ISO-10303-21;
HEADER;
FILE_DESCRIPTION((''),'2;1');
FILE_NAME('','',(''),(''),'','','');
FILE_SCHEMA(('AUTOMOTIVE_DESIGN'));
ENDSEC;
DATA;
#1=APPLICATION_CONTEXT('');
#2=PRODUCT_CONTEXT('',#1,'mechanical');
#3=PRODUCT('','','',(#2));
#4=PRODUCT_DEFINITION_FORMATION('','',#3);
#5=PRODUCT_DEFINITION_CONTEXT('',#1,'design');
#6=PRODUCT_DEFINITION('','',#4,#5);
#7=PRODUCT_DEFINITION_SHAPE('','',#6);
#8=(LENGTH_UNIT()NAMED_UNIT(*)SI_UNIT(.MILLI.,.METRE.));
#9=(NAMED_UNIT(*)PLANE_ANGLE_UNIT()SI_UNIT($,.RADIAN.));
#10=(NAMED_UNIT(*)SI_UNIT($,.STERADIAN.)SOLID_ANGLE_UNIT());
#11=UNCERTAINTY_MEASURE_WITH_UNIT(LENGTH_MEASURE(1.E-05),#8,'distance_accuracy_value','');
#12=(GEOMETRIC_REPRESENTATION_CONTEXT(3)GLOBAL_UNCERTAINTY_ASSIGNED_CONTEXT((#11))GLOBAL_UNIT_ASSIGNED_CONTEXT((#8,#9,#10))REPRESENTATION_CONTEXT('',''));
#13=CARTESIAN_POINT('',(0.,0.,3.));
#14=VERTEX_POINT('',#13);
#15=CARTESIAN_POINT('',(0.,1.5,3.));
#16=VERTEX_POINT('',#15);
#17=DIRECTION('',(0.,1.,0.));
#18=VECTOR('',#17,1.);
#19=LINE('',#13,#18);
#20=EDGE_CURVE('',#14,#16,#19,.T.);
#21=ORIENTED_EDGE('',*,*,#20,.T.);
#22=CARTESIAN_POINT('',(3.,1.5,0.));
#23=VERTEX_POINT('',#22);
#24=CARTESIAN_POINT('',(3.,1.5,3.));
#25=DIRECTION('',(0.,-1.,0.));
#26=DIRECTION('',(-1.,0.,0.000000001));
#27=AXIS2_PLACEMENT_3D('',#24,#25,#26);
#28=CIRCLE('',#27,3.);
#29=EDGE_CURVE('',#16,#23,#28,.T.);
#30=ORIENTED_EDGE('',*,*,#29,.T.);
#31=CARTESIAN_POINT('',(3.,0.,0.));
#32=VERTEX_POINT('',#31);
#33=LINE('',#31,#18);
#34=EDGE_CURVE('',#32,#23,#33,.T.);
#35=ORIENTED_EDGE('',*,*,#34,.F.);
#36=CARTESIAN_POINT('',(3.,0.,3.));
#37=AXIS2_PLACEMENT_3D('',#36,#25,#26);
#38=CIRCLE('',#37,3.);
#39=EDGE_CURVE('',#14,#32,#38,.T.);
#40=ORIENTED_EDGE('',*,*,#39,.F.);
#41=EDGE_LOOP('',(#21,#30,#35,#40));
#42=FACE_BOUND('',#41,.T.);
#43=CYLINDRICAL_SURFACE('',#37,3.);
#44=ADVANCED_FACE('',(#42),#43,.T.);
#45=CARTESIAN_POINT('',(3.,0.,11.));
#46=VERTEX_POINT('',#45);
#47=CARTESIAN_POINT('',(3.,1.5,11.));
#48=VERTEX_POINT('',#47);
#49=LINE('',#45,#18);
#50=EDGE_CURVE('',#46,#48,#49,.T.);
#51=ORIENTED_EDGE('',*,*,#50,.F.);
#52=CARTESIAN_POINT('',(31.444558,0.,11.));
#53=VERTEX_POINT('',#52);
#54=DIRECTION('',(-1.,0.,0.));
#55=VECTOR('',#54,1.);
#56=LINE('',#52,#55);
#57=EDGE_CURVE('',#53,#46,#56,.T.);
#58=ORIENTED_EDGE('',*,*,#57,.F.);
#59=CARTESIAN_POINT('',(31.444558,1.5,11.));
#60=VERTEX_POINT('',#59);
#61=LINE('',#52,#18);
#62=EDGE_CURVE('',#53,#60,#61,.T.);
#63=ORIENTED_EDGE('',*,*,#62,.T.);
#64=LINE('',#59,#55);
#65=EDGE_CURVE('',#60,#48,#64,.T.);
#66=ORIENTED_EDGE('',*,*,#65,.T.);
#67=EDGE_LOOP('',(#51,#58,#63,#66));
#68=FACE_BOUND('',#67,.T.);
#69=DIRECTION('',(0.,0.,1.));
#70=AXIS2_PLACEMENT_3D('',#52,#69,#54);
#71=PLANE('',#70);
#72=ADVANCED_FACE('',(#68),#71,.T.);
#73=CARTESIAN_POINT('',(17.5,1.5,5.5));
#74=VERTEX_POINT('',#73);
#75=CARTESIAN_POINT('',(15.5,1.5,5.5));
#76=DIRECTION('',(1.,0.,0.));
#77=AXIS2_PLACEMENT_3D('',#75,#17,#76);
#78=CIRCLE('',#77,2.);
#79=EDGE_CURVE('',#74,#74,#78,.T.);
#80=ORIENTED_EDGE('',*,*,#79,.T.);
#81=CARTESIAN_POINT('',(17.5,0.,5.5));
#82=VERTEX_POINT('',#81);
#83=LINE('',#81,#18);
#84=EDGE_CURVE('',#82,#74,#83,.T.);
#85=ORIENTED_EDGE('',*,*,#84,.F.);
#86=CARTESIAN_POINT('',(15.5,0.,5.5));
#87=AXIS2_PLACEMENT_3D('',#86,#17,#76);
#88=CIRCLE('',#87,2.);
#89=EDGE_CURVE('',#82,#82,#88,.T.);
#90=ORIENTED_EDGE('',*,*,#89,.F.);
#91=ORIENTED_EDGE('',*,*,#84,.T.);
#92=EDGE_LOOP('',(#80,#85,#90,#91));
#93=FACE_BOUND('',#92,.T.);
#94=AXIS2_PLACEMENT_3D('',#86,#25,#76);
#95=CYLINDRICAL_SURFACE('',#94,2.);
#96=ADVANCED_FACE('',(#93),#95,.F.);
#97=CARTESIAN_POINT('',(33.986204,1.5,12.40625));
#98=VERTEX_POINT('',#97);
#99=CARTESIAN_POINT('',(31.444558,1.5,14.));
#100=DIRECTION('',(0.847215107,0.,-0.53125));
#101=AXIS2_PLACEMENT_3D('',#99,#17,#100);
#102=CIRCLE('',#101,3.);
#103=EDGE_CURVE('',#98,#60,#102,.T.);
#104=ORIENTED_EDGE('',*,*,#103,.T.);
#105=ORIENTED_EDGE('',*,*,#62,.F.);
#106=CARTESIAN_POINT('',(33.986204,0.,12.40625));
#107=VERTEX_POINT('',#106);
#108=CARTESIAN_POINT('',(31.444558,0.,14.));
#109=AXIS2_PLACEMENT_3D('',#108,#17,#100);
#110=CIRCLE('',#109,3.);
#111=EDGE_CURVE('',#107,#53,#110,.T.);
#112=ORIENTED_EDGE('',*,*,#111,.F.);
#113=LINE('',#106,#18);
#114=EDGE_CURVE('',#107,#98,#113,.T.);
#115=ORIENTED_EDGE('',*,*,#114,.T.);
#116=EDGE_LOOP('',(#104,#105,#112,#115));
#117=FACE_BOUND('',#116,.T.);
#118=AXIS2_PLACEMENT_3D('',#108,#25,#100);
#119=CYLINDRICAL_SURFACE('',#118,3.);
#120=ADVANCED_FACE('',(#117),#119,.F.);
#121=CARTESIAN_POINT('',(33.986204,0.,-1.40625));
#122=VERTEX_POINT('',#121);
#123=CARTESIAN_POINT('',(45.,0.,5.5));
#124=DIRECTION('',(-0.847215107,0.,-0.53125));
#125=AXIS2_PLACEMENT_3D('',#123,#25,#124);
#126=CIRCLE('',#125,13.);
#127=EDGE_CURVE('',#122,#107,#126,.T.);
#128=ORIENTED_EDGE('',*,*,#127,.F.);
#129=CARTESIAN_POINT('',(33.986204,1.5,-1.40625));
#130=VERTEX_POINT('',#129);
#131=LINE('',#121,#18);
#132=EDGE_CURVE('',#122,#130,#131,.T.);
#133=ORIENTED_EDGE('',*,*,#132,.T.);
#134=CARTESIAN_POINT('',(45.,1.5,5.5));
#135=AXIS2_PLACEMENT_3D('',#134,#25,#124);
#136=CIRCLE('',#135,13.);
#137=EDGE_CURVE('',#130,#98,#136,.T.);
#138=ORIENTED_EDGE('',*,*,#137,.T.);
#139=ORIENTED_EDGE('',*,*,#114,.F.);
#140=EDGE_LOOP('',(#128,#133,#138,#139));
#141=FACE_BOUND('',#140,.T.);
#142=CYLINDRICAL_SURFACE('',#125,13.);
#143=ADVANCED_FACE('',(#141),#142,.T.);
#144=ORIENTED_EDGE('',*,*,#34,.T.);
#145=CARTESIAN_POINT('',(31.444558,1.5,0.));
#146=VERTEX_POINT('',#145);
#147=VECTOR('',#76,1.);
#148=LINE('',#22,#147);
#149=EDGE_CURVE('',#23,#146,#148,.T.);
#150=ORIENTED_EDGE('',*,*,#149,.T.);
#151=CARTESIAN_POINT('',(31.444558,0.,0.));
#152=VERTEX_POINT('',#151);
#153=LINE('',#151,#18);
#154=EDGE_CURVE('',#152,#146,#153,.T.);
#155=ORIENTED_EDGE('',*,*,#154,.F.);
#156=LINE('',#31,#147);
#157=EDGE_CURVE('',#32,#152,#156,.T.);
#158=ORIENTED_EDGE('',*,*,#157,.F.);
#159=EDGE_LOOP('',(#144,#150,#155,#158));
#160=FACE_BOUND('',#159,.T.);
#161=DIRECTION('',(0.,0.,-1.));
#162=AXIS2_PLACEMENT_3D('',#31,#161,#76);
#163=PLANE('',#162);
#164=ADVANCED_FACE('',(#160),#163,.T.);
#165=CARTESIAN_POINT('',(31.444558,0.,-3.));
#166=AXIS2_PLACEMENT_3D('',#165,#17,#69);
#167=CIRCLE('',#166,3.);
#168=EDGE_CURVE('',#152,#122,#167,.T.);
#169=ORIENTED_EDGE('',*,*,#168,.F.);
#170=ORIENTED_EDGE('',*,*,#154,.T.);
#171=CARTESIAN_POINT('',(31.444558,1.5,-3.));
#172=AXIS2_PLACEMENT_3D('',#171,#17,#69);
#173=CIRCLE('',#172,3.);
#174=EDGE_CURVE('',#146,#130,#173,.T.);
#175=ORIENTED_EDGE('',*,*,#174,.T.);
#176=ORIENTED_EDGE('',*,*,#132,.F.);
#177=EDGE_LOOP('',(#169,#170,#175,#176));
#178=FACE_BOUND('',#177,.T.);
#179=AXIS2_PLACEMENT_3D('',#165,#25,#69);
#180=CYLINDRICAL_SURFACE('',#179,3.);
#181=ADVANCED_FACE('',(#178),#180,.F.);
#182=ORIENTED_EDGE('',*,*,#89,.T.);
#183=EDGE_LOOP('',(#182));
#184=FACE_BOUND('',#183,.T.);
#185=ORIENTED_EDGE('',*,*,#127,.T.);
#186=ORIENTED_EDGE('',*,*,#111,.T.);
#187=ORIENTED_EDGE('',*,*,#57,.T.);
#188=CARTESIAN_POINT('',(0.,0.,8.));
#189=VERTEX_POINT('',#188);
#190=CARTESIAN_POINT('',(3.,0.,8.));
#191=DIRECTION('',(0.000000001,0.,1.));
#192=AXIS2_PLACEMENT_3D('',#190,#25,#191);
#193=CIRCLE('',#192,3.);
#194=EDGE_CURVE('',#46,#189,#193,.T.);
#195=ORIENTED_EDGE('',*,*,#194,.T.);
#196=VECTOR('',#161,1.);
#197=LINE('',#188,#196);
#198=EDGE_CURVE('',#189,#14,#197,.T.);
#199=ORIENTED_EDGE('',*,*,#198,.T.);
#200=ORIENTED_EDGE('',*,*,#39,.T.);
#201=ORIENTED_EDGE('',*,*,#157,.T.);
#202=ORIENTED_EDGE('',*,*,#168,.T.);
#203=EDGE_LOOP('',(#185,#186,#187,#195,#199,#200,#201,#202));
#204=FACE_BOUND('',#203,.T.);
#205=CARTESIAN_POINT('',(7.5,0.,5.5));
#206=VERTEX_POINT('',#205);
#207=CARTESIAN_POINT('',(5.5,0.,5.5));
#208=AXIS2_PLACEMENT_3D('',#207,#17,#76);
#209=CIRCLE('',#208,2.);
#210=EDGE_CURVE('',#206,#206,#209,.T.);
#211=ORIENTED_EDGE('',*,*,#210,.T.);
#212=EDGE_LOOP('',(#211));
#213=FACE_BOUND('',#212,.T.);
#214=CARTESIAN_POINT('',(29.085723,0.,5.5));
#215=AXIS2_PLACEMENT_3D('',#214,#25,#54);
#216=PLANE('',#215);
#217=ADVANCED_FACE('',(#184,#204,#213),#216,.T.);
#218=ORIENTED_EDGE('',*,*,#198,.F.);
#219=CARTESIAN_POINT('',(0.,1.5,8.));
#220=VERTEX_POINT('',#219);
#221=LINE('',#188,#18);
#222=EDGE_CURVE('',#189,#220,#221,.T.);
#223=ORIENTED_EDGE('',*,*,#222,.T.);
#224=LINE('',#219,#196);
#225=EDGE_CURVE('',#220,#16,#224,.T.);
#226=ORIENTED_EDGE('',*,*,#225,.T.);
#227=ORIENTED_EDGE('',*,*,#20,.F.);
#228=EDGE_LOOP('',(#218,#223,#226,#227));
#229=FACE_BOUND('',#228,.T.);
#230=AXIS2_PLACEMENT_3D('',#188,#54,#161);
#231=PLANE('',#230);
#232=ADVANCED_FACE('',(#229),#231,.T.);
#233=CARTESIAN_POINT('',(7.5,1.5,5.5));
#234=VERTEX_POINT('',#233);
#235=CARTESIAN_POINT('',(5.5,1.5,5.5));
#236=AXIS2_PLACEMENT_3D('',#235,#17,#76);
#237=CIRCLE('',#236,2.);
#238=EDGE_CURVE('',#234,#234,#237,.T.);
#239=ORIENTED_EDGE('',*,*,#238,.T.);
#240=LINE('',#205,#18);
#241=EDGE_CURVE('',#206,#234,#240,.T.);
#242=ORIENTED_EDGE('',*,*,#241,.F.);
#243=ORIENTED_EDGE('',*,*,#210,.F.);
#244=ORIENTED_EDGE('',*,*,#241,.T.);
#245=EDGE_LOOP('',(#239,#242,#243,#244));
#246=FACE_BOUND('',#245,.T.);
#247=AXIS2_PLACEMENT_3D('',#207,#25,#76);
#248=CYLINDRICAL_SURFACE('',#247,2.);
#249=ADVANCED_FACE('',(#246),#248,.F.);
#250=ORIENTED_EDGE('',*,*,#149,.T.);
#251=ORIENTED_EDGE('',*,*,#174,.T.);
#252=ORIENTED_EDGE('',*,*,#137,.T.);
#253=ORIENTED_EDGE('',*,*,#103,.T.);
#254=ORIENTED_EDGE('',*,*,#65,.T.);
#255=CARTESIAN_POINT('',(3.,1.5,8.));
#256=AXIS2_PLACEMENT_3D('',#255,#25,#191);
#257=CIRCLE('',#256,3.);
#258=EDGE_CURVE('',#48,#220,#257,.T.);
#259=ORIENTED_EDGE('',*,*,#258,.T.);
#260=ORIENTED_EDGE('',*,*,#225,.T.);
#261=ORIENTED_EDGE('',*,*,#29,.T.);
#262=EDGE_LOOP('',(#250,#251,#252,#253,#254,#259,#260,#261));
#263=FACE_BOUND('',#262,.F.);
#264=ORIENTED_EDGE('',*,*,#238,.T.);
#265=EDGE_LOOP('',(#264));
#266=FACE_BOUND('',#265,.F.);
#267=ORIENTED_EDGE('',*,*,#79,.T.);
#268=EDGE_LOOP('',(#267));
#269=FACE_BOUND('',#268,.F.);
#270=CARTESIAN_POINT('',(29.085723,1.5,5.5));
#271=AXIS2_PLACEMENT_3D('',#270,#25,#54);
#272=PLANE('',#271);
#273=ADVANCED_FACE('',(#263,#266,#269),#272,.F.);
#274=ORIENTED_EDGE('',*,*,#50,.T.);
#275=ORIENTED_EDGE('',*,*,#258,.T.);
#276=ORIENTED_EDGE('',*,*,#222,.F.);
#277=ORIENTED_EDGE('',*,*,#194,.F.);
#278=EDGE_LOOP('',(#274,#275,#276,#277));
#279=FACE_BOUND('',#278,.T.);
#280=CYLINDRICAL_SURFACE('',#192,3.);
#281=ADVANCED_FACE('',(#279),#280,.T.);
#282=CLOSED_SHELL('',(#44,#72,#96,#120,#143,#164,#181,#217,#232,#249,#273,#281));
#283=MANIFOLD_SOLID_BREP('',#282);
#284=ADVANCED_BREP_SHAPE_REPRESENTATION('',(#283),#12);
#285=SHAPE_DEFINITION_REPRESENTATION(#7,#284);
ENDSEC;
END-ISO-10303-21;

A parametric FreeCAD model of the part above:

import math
import FreeCAD as App
import Part
import Sketcher
Q = App.Units.Quantity

doc = App.newDocument("Part")
body = doc.addObject("PartDesign::Body", "Body")

# Sketch on XZ plane
sketch1 = doc.addObject("Sketcher::SketchObject", "Sketch")
body.addObject(sketch1)
sketch1.AttachmentSupport = (doc.XZ_Plane, [""])
sketch1.MapMode = "FlatFace"
sketch1.addGeometry([
    Part.LineSegment(App.Vector(31.444558, 0, 0), App.Vector(3, 0, 0)),  # 0
    Part.ArcOfCircle(Part.Circle(App.Vector(3, 3, 0), App.Vector(0, 0, 1), 3), math.radians(180), math.radians(270)),  # 1
    Part.LineSegment(App.Vector(0, 3, 0), App.Vector(0, 8, 0)),  # 2
    Part.ArcOfCircle(Part.Circle(App.Vector(3, 8, 0), App.Vector(0, 0, 1), 3), math.radians(90), math.radians(180)),  # 3
    Part.LineSegment(App.Vector(3, 11, 0), App.Vector(31.444558, 11, 0)),  # 4
    Part.ArcOfCircle(Part.Circle(App.Vector(31.444558, 14, 0), App.Vector(0, 0, 1), 3), math.radians(-90), math.radians(-32.089951)),  # 5
    Part.ArcOfCircle(Part.Circle(App.Vector(45, 5.5, 0), App.Vector(0, 0, 1), 13), math.radians(-147.910049), math.radians(147.910049)),  # 6
    Part.ArcOfCircle(Part.Circle(App.Vector(31.444558, -3, 0), App.Vector(0, 0, 1), 3), math.radians(32.089951), math.radians(90)),  # 7
    Part.Circle(App.Vector(15.5, 5.5, 0), App.Vector(0, 0, 1), 2),  # 8
    Part.Circle(App.Vector(5.5, 5.5, 0), App.Vector(0, 0, 1), 2),  # 9
], False)
sketch1.addConstraint([
    Sketcher.Constraint("Tangent", 0, 2, 1, 2),
    Sketcher.Constraint("Tangent", 1, 1, 2, 1),
    Sketcher.Constraint("Tangent", 2, 2, 3, 2),
    Sketcher.Constraint("Tangent", 3, 1, 4, 1),
    Sketcher.Constraint("Tangent", 4, 2, 5, 1),
    Sketcher.Constraint("Tangent", 5, 2, 6, 2),
    Sketcher.Constraint("Tangent", 6, 1, 7, 1),
    Sketcher.Constraint("Tangent", 7, 2, 0, 1),
    Sketcher.Constraint("Horizontal", 0),
    Sketcher.Constraint("Vertical", 2),
    Sketcher.Constraint("Horizontal", 4),
    Sketcher.Constraint("Equal", 1, 3),
    Sketcher.Constraint("Equal", 3, 5),
    Sketcher.Constraint("Equal", 5, 7),
    Sketcher.Constraint("Equal", 8, 9),
    Sketcher.Constraint("PointOnObject", 0, 2, -1),
    Sketcher.Constraint("PointOnObject", 1, 1, -2),
    Sketcher.Constraint("Horizontal", 6, 3, 8, 3),
    Sketcher.Constraint("Horizontal", 8, 3, 9, 3),
    Sketcher.Constraint("Vertical", 5, 3, 7, 3),
    Sketcher.Constraint("Diameter", 8, Q("4 mm")),
    Sketcher.Constraint("Radius", 1, Q("3 mm")),
    Sketcher.Constraint("Radius", 6, Q("13 mm")),
    Sketcher.Constraint("DistanceY", 2, 1, 2, 2, Q("5 mm")),
    Sketcher.Constraint("DistanceX", -1, 1, 6, 3, Q("45 mm")),
    Sketcher.Constraint("DistanceX", 9, 3, 8, 3, Q("10 mm")),
    Sketcher.Constraint("DistanceX", -1, 1, 8, 3, Q("15.5 mm")),
])
pad1 = doc.addObject("PartDesign::Pad", "Pad")
body.addObject(pad1)
pad1.Profile = sketch1
pad1.Length = 1.5
pad1.Reversed = True

doc.recompute()
